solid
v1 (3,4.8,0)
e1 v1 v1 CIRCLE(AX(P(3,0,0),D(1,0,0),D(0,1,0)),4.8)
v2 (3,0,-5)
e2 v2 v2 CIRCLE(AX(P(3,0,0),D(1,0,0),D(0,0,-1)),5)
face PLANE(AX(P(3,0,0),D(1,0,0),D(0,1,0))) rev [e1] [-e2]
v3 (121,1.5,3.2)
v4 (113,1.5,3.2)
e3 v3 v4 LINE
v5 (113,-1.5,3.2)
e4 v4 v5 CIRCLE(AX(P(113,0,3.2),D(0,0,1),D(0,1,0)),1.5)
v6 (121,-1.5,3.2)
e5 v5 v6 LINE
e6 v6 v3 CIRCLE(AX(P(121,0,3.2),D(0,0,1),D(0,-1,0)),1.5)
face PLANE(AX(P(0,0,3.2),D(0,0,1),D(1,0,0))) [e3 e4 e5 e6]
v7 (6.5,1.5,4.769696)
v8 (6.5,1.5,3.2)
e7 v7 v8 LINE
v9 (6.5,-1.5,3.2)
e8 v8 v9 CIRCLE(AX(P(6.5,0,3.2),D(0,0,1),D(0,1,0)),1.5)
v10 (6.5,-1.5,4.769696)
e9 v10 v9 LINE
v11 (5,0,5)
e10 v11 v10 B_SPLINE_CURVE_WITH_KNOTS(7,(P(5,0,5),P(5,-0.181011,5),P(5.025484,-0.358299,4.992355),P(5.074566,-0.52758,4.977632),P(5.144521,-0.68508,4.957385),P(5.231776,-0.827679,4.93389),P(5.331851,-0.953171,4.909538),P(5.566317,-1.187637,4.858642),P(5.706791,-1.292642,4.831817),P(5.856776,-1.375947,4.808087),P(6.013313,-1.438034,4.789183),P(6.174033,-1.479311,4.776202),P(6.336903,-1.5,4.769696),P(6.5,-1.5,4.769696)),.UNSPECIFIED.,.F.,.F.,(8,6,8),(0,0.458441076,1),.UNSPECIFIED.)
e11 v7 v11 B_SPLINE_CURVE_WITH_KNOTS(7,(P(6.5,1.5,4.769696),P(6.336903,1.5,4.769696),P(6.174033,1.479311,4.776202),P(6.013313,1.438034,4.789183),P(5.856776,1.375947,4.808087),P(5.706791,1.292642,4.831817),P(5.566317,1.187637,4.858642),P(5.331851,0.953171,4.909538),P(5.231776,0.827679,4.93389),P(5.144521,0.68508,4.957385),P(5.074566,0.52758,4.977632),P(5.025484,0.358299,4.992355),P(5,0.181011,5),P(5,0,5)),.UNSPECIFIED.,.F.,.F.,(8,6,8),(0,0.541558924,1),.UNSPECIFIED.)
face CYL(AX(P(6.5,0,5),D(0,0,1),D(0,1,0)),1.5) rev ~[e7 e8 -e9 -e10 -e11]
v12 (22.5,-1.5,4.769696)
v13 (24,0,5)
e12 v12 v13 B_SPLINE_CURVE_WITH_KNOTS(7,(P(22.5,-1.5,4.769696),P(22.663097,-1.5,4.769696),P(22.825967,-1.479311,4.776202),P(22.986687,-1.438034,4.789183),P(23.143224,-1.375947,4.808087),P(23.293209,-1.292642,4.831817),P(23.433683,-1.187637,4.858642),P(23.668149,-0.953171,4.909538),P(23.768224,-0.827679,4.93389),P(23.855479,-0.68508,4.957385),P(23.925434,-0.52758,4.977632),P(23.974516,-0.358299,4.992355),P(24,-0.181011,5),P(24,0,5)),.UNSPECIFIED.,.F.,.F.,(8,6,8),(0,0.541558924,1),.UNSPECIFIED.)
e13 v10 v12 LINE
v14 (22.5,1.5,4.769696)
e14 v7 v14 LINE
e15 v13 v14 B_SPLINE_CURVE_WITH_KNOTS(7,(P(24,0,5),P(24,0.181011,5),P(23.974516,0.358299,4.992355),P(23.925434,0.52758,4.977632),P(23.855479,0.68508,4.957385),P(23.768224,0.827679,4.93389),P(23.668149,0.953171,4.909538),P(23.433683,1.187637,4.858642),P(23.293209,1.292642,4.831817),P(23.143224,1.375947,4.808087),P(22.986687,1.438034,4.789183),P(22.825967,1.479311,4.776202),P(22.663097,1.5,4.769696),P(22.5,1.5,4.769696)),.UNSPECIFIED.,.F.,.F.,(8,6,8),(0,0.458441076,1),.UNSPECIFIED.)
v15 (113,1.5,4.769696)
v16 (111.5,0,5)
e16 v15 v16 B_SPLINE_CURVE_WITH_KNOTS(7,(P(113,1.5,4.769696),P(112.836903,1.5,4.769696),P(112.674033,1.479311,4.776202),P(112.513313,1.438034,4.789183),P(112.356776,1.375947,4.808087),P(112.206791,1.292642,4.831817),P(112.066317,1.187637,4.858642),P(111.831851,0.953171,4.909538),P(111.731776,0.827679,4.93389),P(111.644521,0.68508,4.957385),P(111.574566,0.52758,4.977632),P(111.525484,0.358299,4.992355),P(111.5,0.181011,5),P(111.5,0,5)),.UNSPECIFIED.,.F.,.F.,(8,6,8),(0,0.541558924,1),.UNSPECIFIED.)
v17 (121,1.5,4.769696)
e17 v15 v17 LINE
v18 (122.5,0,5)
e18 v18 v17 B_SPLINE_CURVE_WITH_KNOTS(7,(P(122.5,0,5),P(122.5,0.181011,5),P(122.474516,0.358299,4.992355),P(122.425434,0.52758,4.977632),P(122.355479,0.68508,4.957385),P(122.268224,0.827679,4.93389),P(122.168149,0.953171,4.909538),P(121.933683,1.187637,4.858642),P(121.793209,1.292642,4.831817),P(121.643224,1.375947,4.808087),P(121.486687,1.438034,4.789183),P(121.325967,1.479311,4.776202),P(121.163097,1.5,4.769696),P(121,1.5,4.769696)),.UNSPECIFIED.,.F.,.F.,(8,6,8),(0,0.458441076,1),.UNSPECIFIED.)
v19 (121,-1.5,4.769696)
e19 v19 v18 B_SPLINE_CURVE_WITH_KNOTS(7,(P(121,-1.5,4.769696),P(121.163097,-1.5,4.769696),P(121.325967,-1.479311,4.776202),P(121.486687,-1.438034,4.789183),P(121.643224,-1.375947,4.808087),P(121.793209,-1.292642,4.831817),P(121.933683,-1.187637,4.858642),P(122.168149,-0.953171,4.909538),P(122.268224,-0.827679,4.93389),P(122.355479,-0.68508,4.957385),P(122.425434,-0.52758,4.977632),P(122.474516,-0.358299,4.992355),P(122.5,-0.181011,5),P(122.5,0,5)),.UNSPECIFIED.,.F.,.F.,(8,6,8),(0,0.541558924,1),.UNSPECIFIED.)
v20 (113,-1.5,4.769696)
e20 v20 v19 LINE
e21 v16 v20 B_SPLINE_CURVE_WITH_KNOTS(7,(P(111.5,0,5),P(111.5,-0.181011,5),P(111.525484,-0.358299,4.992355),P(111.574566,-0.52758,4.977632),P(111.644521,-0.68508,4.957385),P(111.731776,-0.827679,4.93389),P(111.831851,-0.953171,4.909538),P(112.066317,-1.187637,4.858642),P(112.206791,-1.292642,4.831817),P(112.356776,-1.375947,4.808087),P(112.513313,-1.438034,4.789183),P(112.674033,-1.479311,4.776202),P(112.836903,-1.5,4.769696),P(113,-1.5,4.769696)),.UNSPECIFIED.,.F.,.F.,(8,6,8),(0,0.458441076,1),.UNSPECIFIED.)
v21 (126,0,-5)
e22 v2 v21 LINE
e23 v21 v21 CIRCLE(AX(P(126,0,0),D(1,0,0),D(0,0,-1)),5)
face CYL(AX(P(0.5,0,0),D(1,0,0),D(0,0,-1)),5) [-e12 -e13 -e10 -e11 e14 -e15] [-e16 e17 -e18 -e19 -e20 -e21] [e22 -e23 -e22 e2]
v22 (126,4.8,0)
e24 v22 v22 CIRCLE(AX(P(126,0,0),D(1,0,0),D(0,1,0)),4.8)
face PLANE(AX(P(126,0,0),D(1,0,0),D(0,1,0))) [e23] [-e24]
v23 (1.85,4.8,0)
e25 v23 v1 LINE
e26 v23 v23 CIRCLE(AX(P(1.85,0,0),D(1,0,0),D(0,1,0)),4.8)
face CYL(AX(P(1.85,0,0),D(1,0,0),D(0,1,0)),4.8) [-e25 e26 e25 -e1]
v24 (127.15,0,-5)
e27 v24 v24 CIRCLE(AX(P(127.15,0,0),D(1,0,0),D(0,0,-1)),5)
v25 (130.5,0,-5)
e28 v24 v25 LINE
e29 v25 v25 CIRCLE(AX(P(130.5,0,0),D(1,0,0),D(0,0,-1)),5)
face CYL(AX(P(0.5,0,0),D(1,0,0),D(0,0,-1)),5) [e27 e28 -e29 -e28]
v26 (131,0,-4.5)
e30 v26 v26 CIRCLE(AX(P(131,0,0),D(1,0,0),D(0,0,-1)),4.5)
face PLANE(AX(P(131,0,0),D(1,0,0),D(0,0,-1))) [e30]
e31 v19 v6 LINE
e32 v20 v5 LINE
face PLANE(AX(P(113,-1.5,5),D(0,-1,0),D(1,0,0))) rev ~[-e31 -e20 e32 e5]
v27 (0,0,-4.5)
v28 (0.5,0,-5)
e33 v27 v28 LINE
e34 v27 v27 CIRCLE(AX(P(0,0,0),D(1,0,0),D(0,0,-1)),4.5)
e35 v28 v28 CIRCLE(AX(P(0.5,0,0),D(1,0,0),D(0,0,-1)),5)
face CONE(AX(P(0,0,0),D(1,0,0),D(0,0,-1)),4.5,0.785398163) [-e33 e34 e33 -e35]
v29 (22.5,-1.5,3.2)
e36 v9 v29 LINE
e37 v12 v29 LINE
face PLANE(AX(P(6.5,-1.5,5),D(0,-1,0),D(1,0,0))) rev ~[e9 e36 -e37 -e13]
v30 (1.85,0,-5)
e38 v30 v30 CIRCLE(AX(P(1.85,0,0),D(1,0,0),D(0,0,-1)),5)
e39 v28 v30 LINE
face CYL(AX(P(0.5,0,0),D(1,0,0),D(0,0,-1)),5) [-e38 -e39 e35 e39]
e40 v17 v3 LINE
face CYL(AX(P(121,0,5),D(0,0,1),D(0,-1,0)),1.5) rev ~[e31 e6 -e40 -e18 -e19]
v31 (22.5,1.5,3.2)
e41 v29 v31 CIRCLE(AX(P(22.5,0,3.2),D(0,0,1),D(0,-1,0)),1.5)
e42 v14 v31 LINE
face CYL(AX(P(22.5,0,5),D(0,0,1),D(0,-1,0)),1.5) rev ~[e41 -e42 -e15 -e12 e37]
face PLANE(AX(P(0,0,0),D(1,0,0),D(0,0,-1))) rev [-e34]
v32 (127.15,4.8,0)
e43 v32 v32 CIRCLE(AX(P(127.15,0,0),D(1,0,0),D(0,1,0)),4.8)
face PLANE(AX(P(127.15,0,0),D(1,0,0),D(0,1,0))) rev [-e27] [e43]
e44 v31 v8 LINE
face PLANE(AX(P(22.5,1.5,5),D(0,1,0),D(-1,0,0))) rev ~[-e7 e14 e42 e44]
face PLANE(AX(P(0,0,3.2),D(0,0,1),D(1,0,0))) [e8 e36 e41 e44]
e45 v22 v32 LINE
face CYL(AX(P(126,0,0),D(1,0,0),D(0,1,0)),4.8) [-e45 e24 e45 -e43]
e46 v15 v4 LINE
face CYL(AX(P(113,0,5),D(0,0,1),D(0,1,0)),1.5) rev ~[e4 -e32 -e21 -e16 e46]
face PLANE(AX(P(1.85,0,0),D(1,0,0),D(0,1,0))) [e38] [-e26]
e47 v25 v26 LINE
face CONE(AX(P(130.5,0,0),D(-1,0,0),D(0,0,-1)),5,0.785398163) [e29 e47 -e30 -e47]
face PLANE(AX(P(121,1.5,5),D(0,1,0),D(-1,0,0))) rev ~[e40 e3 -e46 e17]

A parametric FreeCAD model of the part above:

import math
import FreeCAD as App
import Part
import Sketcher
from FreeCAD import Vector

doc = App.newDocument("Part")
body = doc.addObject("PartDesign::Body", "Body")

sketch1 = body.newObject("Sketcher::SketchObject", "Sketch")
sketch1.AttachmentSupport = (doc.getObject("XZ_Plane"), [""])
sketch1.MapMode = "FlatFace"
sketch1.addGeometry([
    Part.LineSegment(Vector(0, 0, 0), Vector(131, 0, 0)),
    Part.LineSegment(Vector(131, 0, 0), Vector(131, -4.5, 0)),
    Part.LineSegment(Vector(131, -4.5, 0), Vector(130.5, -5, 0)),
    Part.LineSegment(Vector(130.5, -5, 0), Vector(0.5, -5, 0)),
    Part.LineSegment(Vector(0.5, -5, 0), Vector(0, -4.5, 0)),
    Part.LineSegment(Vector(0, -4.5, 0), Vector(0, 0, 0)),
], False)
sketch1.addConstraint([
    Sketcher.Constraint("Coincident", 0, 2, 1, 1),
    Sketcher.Constraint("Coincident", 1, 2, 2, 1),
    Sketcher.Constraint("Coincident", 2, 2, 3, 1),
    Sketcher.Constraint("Coincident", 3, 2, 4, 1),
    Sketcher.Constraint("Coincident", 4, 2, 5, 1),
    Sketcher.Constraint("Coincident", 5, 2, 0, 1),
    Sketcher.Constraint("Horizontal", 0),
    Sketcher.Constraint("Vertical", 1),
    Sketcher.Constraint("Horizontal", 3),
    Sketcher.Constraint("Vertical", 5),
    Sketcher.Constraint("Coincident", 5, 2, -1, 1),
    Sketcher.Constraint("Perpendicular", 2, 4),
    Sketcher.Constraint("Horizontal", 1, 2, 4, 2),
    Sketcher.Constraint("Equal", 2, 4),
    Sketcher.Constraint("DistanceX", 0, 1, 0, 2, 131.0),
    Sketcher.Constraint("DistanceX", 3, 2, 3, 1, 130.0),
    Sketcher.Constraint("DistanceY", 1, 2, 1, 1, 4.5),
])
revolution = body.newObject("PartDesign::Revolution", "Revolution")
revolution.Profile = sketch1
revolution.ReferenceAxis = (sketch1, ["H_Axis"])
revolution.Angle = 360

sketch2 = body.newObject("Sketcher::SketchObject", "Sketch001")
sketch2.AttachmentSupport = (doc.getObject("XY_Plane"), [""])
sketch2.MapMode = "FlatFace"
sketch2.addGeometry([
    Part.LineSegment(Vector(3, 9.6, 0), Vector(1.85, 9.6, 0)),
    Part.LineSegment(Vector(1.85, 9.6, 0), Vector(1.85, 4.8, 0)),
    Part.LineSegment(Vector(1.85, 4.8, 0), Vector(3, 4.8, 0)),
    Part.LineSegment(Vector(3, 4.8, 0), Vector(3, 9.6, 0)),
], False)
sketch2.addConstraint([
    Sketcher.Constraint("Coincident", 0, 2, 1, 1),
    Sketcher.Constraint("Coincident", 1, 2, 2, 1),
    Sketcher.Constraint("Coincident", 2, 2, 3, 1),
    Sketcher.Constraint("Coincident", 3, 2, 0, 1),
    Sketcher.Constraint("Horizontal", 0),
    Sketcher.Constraint("Vertical", 1),
    Sketcher.Constraint("Horizontal", 2),
    Sketcher.Constraint("Vertical", 3),
    Sketcher.Constraint("DistanceY", 1, 2, 1, 1, 4.8),
    Sketcher.Constraint("DistanceX", -1, 1, 2, 2, 3.0),
    Sketcher.Constraint("DistanceX", 0, 2, 0, 1, 1.15),
    Sketcher.Constraint("DistanceY", -1, 1, 0, 2, 9.6),
])
groove = body.newObject("PartDesign::Groove", "Groove")
groove.Profile = sketch2
groove.ReferenceAxis = (sketch2, ["H_Axis"])
groove.Angle = 360

sketch3 = body.newObject("Sketcher::SketchObject", "Sketch002")
sketch3.AttachmentSupport = (doc.getObject("XY_Plane"), [""])
sketch3.MapMode = "FlatFace"
sketch3.addGeometry([
    Part.LineSegment(Vector(127.15, 9.6, 0), Vector(126, 9.6, 0)),
    Part.LineSegment(Vector(126, 9.6, 0), Vector(126, 4.8, 0)),
    Part.LineSegment(Vector(126, 4.8, 0), Vector(127.15, 4.8, 0)),
    Part.LineSegment(Vector(127.15, 4.8, 0), Vector(127.15, 9.6, 0)),
], False)
sketch3.addConstraint([
    Sketcher.Constraint("Coincident", 0, 2, 1, 1),
    Sketcher.Constraint("Coincident", 1, 2, 2, 1),
    Sketcher.Constraint("Coincident", 2, 2, 3, 1),
    Sketcher.Constraint("Coincident", 3, 2, 0, 1),
    Sketcher.Constraint("Horizontal", 0),
    Sketcher.Constraint("Vertical", 1),
    Sketcher.Constraint("Horizontal", 2),
    Sketcher.Constraint("Vertical", 3),
    Sketcher.Constraint("DistanceY", 1, 2, 1, 1, 4.8),
    Sketcher.Constraint("DistanceX", -1, 1, 0, 2, 126.0),
    Sketcher.Constraint("DistanceX", 0, 2, 0, 1, 1.15),
    Sketcher.Constraint("DistanceY", -1, 1, 0, 2, 9.6),
])
groove2 = body.newObject("PartDesign::Groove", "Groove001")
groove2.Profile = sketch3
groove2.ReferenceAxis = (sketch3, ["H_Axis"])
groove2.Angle = 360

sketch4 = body.newObject("Sketcher::SketchObject", "Sketch003")
sketch4.AttachmentSupport = (doc.getObject("XY_Plane"), [""])
sketch4.MapMode = "FlatFace"
sketch4.AttachmentOffset = App.Placement(Vector(0, 0, 5), App.Rotation())
sketch4.addGeometry([
    Part.LineSegment(Vector(22.5, 1.5, 0), Vector(6.5, 1.5, 0)),
    Part.ArcOfCircle(Part.Circle(Vector(6.5, 0, 0), Vector(0, 0, 1), 1.5), math.radians(90), math.radians(270)),
    Part.LineSegment(Vector(6.5, -1.5, 0), Vector(22.5, -1.5, 0)),
    Part.ArcOfCircle(Part.Circle(Vector(22.5, 0, 0), Vector(0, 0, 1), 1.5), math.radians(-90), math.radians(90)),
], False)
sketch4.addConstraint([
    Sketcher.Constraint("Tangent", 0, 2, 1, 1),
    Sketcher.Constraint("Tangent", 1, 2, 2, 1),
    Sketcher.Constraint("Tangent", 2, 2, 3, 1),
    Sketcher.Constraint("Tangent", 3, 2, 0, 1),
    Sketcher.Constraint("Horizontal", 0),
    Sketcher.Constraint("Horizontal", 2),
    Sketcher.Constraint("PointOnObject", 1, 3, -1),
    Sketcher.Constraint("Radius", 1, 1.5),
    Sketcher.Constraint("DistanceX", 0, 2, 0, 1, 16.0),
    Sketcher.Constraint("DistanceX", -1, 1, 1, 3, 6.5),
])
pocket1 = body.newObject("PartDesign::Pocket", "Pocket")
pocket1.Profile = sketch4
pocket1.Length = 1.8

sketch5 = body.newObject("Sketcher::SketchObject", "Sketch004")
sketch5.AttachmentSupport = (doc.getObject("XY_Plane"), [""])
sketch5.MapMode = "FlatFace"
sketch5.AttachmentOffset = App.Placement(Vector(0, 0, 5), App.Rotation())
sketch5.addGeometry([
    Part.LineSegment(Vector(121, 1.5, 0), Vector(113, 1.5, 0)),
    Part.ArcOfCircle(Part.Circle(Vector(113, 0, 0), Vector(0, 0, 1), 1.5), math.radians(90), math.radians(270)),
    Part.LineSegment(Vector(113, -1.5, 0), Vector(121, -1.5, 0)),
    Part.ArcOfCircle(Part.Circle(Vector(121, 0, 0), Vector(0, 0, 1), 1.5), math.radians(-90), math.radians(90)),
], False)
sketch5.addConstraint([
    Sketcher.Constraint("Tangent", 0, 2, 1, 1),
    Sketcher.Constraint("Tangent", 1, 2, 2, 1),
    Sketcher.Constraint("Tangent", 2, 2, 3, 1),
    Sketcher.Constraint("Tangent", 3, 2, 0, 1),
    Sketcher.Constraint("Horizontal", 0),
    Sketcher.Constraint("Horizontal", 2),
    Sketcher.Constraint("PointOnObject", 1, 3, -1),
    Sketcher.Constraint("Radius", 1, 1.5),
    Sketcher.Constraint("DistanceX", 0, 2, 0, 1, 8.0),
    Sketcher.Constraint("DistanceX", -1, 1, 1, 3, 113.0),
])
pocket2 = body.newObject("PartDesign::Pocket", "Pocket001")
pocket2.Profile = sketch5
pocket2.Length = 1.8

doc.recompute()
